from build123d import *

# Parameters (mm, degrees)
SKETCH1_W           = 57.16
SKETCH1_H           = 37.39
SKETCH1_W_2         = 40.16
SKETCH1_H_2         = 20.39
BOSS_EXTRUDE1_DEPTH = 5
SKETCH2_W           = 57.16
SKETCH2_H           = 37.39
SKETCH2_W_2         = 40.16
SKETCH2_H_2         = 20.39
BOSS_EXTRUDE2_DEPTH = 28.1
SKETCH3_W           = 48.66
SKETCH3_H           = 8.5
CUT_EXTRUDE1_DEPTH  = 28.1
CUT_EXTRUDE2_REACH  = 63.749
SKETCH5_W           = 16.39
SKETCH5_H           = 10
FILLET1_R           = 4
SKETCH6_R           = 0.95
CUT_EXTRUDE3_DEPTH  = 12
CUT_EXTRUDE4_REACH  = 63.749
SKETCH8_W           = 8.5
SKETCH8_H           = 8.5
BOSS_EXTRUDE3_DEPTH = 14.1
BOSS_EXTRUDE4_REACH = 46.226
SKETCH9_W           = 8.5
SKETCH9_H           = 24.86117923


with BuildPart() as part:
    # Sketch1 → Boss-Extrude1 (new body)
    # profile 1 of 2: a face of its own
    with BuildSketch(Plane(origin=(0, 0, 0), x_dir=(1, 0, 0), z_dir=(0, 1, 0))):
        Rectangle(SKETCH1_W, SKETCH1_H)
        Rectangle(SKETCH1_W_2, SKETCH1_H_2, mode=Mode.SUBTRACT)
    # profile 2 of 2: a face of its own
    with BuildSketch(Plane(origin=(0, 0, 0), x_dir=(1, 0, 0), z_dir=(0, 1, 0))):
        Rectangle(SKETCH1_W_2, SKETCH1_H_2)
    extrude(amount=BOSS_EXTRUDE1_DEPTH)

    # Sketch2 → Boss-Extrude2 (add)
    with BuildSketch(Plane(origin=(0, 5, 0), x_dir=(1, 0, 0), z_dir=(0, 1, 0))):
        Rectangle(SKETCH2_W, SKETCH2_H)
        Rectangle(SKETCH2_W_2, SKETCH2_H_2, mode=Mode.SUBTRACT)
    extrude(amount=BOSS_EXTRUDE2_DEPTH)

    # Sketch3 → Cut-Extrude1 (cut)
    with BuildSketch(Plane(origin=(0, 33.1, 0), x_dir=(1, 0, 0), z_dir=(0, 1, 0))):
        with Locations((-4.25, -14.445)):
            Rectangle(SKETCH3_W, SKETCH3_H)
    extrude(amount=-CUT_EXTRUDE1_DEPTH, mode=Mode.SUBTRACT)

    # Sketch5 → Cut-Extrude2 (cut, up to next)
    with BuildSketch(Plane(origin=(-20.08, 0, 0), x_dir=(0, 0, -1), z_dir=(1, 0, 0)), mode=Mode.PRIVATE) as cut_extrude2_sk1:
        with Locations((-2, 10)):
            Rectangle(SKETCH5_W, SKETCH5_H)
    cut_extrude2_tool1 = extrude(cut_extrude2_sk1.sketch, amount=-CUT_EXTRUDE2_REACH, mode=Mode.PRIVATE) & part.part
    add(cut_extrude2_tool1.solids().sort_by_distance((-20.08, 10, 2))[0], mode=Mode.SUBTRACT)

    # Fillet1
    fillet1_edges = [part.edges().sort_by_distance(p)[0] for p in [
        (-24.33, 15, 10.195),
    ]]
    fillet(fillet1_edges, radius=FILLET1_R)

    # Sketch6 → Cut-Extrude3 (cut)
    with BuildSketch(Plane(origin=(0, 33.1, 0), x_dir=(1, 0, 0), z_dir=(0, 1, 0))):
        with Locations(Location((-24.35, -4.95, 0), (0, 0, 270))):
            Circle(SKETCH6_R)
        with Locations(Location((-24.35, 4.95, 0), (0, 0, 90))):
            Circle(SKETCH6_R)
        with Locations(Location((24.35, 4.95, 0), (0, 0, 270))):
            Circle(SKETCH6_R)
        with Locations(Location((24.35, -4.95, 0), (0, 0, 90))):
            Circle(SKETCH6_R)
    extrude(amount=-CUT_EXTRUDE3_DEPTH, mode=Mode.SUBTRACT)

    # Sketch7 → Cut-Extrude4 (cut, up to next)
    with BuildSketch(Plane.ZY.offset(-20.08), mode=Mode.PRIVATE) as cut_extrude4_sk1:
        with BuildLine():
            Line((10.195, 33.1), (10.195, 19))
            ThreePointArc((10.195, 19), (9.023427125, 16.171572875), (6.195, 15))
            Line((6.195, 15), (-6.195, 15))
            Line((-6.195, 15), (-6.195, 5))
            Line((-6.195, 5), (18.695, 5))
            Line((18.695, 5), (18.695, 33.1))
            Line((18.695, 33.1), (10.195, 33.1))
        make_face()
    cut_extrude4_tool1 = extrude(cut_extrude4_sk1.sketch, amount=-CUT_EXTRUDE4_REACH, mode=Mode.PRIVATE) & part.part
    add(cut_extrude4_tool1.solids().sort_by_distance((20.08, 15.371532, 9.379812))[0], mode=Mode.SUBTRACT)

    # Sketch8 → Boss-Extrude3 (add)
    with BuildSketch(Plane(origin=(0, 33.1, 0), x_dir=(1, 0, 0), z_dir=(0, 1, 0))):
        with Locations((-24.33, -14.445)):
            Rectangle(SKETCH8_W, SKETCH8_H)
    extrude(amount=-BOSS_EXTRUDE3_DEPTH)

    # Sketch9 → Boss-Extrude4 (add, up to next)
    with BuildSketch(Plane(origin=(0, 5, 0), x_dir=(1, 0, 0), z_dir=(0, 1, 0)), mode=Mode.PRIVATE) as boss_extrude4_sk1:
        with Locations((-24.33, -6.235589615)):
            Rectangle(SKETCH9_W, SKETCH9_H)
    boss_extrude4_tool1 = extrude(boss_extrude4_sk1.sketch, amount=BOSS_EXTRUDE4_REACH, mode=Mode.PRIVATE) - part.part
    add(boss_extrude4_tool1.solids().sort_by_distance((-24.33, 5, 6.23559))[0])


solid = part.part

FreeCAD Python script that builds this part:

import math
import FreeCAD as App
import Part
import Sketcher


def edges_at(feature, points):
    """Names of the edges that pass closest to the given points."""
    edges = feature.Shape.Edges
    near = lambda p: min(range(len(edges)), key=lambda i: edges[i].distToShape(Part.Vertex(*p))[0])
    return sorted({f"Edge{near(p) + 1}" for p in points})


def add_polygon(sketch, points):
    """Adds a closed chain of lines whose ends are joined by coincident constraints."""
    first, n = sketch.GeometryCount, len(points)
    for a, b in zip(points, points[1:] + points[:1]):
        sketch.addGeometry(Part.LineSegment(App.Vector(*a, 0), App.Vector(*b, 0)), False)
    for i in range(n):
        sketch.addConstraint(Sketcher.Constraint("Coincident", first + i, 2, first + (i + 1) % n, 1))

doc = App.newDocument("Part")
body = doc.addObject("PartDesign::Body", "Body")

sketch1 = body.newObject("Sketcher::SketchObject", "Sketch")
sketch1.AttachmentSupport = (doc.getObject("XZ_Plane"), [""])
sketch1.MapMode = "FlatFace"
add_polygon(sketch1, [(-29, -19), (-29, 19), (29, 19), (29, -19)])
sketch1.addConstraint(Sketcher.Constraint("Vertical", 0))
sketch1.addConstraint(Sketcher.Constraint("Horizontal", 1))
sketch1.addConstraint(Sketcher.Constraint("Vertical", 2))
sketch1.addConstraint(Sketcher.Constraint("Horizontal", 3))
sketch1.addConstraint(Sketcher.Constraint("Symmetric", 0, 2, 2, 2, -1, 1))
sketch1.addConstraint(Sketcher.Constraint("DistanceX", 1, 1, 1, 2, 57.16))
sketch1.addConstraint(Sketcher.Constraint("DistanceY", 0, 1, 0, 2, 37.39))
pad1 = body.newObject("PartDesign::Pad", "Pad")
pad1.Profile = sketch1
pad1.Length = 5
pad1.Reversed = True

sketch2 = body.newObject("Sketcher::SketchObject", "Sketch001")
sketch2.AttachmentSupport = (doc.getObject("XZ_Plane"), [""])
sketch2.MapMode = "FlatFace"
sketch2.AttachmentOffset = App.Placement(App.Vector(0, 0, -5), App.Rotation())
add_polygon(sketch2, [(-29, -19), (-29, 19), (29, 19), (29, -19)])
add_polygon(sketch2, [(20, 10), (-20, 10), (-20, -10), (20, -10)])
sketch2.addConstraint(Sketcher.Constraint("Vertical", 0))
sketch2.addConstraint(Sketcher.Constraint("Horizontal", 1))
sketch2.addConstraint(Sketcher.Constraint("Vertical", 2))
sketch2.addConstraint(Sketcher.Constraint("Horizontal", 3))
sketch2.addConstraint(Sketcher.Constraint("Horizontal", 4))
sketch2.addConstraint(Sketcher.Constraint("Vertical", 5))
sketch2.addConstraint(Sketcher.Constraint("Horizontal", 6))
sketch2.addConstraint(Sketcher.Constraint("Vertical", 7))
sketch2.addConstraint(Sketcher.Constraint("Symmetric", 0, 2, 2, 2, -1, 1))
sketch2.addConstraint(Sketcher.Constraint("Symmetric", 4, 2, 6, 2, -1, 1))
sketch2.addConstraint(Sketcher.Constraint("DistanceX", 1, 1, 1, 2, 57.16))
sketch2.addConstraint(Sketcher.Constraint("DistanceX", 4, 2, 4, 1, 40.16))
sketch2.addConstraint(Sketcher.Constraint("DistanceY", 0, 1, 0, 2, 37.39))
sketch2.addConstraint(Sketcher.Constraint("DistanceY", 5, 2, 5, 1, 20.39))
pad2 = body.newObject("PartDesign::Pad", "Pad001")
pad2.Profile = sketch2
pad2.Length = 28.1
pad2.Reversed = True

sketch3 = body.newObject("Sketcher::SketchObject", "Sketch002")
sketch3.AttachmentSupport = (doc.getObject("XZ_Plane"), [""])
sketch3.MapMode = "FlatFace"
sketch3.AttachmentOffset = App.Placement(App.Vector(0, 0, -33.1), App.Rotation())
add_polygon(sketch3, [(-29, 10), (-29, 19), (20, 19), (20, 10)])
sketch3.addConstraint(Sketcher.Constraint("Vertical", 0))
sketch3.addConstraint(Sketcher.Constraint("Horizontal", 1))
sketch3.addConstraint(Sketcher.Constraint("Vertical", 2))
sketch3.addConstraint(Sketcher.Constraint("Horizontal", 3))
sketch3.addConstraint(Sketcher.Constraint("DistanceY", 0, 1, 0, 2, 8.5))
sketch3.addConstraint(Sketcher.Constraint("DistanceX", 1, 1, 1, 2, 48.66))
sketch3.addConstraint(Sketcher.Constraint("DistanceX", 0, 2, -1, 1, 28.58))
sketch3.addConstraint(Sketcher.Constraint("DistanceY", -1, 1, 0, 2, 18.695))
pocket1 = body.newObject("PartDesign::Pocket", "Pocket")
pocket1.Profile = sketch3
pocket1.Length = 28.1
pocket1.Reversed = True

sketch4 = body.newObject("Sketcher::SketchObject", "Sketch003")
sketch4.AttachmentSupport = (doc.getObject("YZ_Plane"), [""])
sketch4.MapMode = "FlatFace"
sketch4.AttachmentOffset = App.Placement(App.Vector(0, 0, -20.08), App.Rotation())
add_polygon(sketch4, [(15, 10), (5, 10), (5, -6), (15, -6)])
sketch4.addConstraint(Sketcher.Constraint("Horizontal", 0))
sketch4.addConstraint(Sketcher.Constraint("Vertical", 1))
sketch4.addConstraint(Sketcher.Constraint("Horizontal", 2))
sketch4.addConstraint(Sketcher.Constraint("Vertical", 3))
sketch4.addConstraint(Sketcher.Constraint("DistanceX", 0, 2, 0, 1, 10.0))
sketch4.addConstraint(Sketcher.Constraint("DistanceX", -1, 1, 0, 2, 5.0))
sketch4.addConstraint(Sketcher.Constraint("DistanceY", 1, 2, 1, 1, 16.39))
sketch4.addConstraint(Sketcher.Constraint("DistanceY", -1, 1, 0, 2, 10.195))
pocket2 = body.newObject("PartDesign::Pocket", "Pocket001")
pocket2.Profile = sketch4
pocket2.Type = "UpToFirst"
doc.recompute()

fillet = body.newObject("PartDesign::Fillet", "Fillet")
fillet.Base = (pocket2, edges_at(pocket2, [(-24.33, 15, 10.195)]))
fillet.Radius = 4

sketch5 = body.newObject("Sketcher::SketchObject", "Sketch004")
sketch5.AttachmentSupport = (doc.getObject("XZ_Plane"), [""])
sketch5.MapMode = "FlatFace"
sketch5.AttachmentOffset = App.Placement(App.Vector(0, 0, -33.1), App.Rotation())
sketch5.addGeometry(Part.Circle(App.Vector(-24.4, 5, 0), App.Vector(0, 0, 1), 0.9), False)
sketch5.addGeometry(Part.Circle(App.Vector(-24.4, -5, 0), App.Vector(0, 0, 1), 0.9), False)
sketch5.addGeometry(Part.Circle(App.Vector(24.4, -5, 0), App.Vector(0, 0, 1), 0.9), False)
sketch5.addGeometry(Part.Circle(App.Vector(24.4, 5, 0), App.Vector(0, 0, 1), 0.9), False)
sketch5.addConstraint(Sketcher.Constraint("Equal", 0, 1))
sketch5.addConstraint(Sketcher.Constraint("Equal", 1, 2))
sketch5.addConstraint(Sketcher.Constraint("Equal", 2, 3))
sketch5.addConstraint(Sketcher.Constraint("Symmetric", 0, 3, 2, 3, -1, 1))
sketch5.addConstraint(Sketcher.Constraint("Symmetric", 1, 3, 3, 3, -1, 1))
sketch5.addConstraint(Sketcher.Constraint("Symmetric", 1, 3, 2, 3, -2))
sketch5.addConstraint(Sketcher.Constraint("Diameter", 0, 1.9))
sketch5.addConstraint(Sketcher.Constraint("DistanceY", 1, 3, 0, 3, 9.9))
sketch5.addConstraint(Sketcher.Constraint("DistanceX", 1, 3, 2, 3, 48.7))
pocket3 = body.newObject("PartDesign::Pocket", "Pocket002")
pocket3.Profile = sketch5
pocket3.Length = 12
pocket3.Reversed = True

sketch6 = body.newObject("Sketcher::SketchObject", "Sketch005")
sketch6.AttachmentSupport = (doc.getObject("YZ_Plane"), [""])
sketch6.MapMode = "FlatFace"
sketch6.AttachmentOffset = App.Placement(App.Vector(0, 0, 20.08), App.Rotation())
sketch6.addGeometry(Part.LineSegment(App.Vector(33.1, 10.2, 0), App.Vector(19, 10.2, 0)), False)
sketch6.addGeometry(Part.ArcOfCircle(Part.Circle(App.Vector(19, 6.2, 0), App.Vector(0, 0, 1), 4), math.radians(90), math.radians(180)), False)
sketch6.addGeometry(Part.LineSegment(App.Vector(15, 6.2, 0), App.Vector(15, -6.2, 0)), False)
sketch6.addGeometry(Part.LineSegment(App.Vector(15, -6.2, 0), App.Vector(5, -6.2, 0)), False)
sketch6.addGeometry(Part.LineSegment(App.Vector(5, -6.2, 0), App.Vector(5, 18.7, 0)), False)
sketch6.addGeometry(Part.LineSegment(App.Vector(5, 18.7, 0), App.Vector(33.1, 18.7, 0)), False)
sketch6.addGeometry(Part.LineSegment(App.Vector(33.1, 18.7, 0), App.Vector(33.1, 10.2, 0)), False)
sketch6.addConstraint(Sketcher.Constraint("Tangent", 0, 2, 1, 1))
sketch6.addConstraint(Sketcher.Constraint("Tangent", 1, 2, 2, 1))
sketch6.addConstraint(Sketcher.Constraint("Coincident", 2, 2, 3, 1))
sketch6.addConstraint(Sketcher.Constraint("Coincident", 3, 2, 4, 1))
sketch6.addConstraint(Sketcher.Constraint("Coincident", 4, 2, 5, 1))
sketch6.addConstraint(Sketcher.Constraint("Coincident", 5, 2, 6, 1))
sketch6.addConstraint(Sketcher.Constraint("Coincident", 6, 2, 0, 1))
sketch6.addConstraint(Sketcher.Constraint("Horizontal", 0))
sketch6.addConstraint(Sketcher.Constraint("Vertical", 2))
sketch6.addConstraint(Sketcher.Constraint("Horizontal", 3))
sketch6.addConstraint(Sketcher.Constraint("Vertical", 4))
sketch6.addConstraint(Sketcher.Constraint("Horizontal", 5))
sketch6.addConstraint(Sketcher.Constraint("Vertical", 6))
sketch6.addConstraint(Sketcher.Constraint("Radius", 1, 4.0))
sketch6.addConstraint(Sketcher.Constraint("DistanceX", 3, 2, 3, 1, 10.0))
sketch6.addConstraint(Sketcher.Constraint("DistanceX", 0, 2, 0, 1, 14.1))
sketch6.addConstraint(Sketcher.Constraint("DistanceY", 6, 2, 6, 1, 8.5))
sketch6.addConstraint(Sketcher.Constraint("DistanceX", -1, 1, 1, 3, 19.0))
sketch6.addConstraint(Sketcher.Constraint("DistanceY", 2, 2, 2, 1, 12.39))
sketch6.addConstraint(Sketcher.Constraint("DistanceY", -1, 1, 1, 3, 6.195))
pocket4 = body.newObject("PartDesign::Pocket", "Pocket003")
pocket4.Profile = sketch6
pocket4.Type = "UpToFirst"
pocket4.Reversed = True

sketch7 = body.newObject("Sketcher::SketchObject", "Sketch006")
sketch7.AttachmentSupport = (doc.getObject("XZ_Plane"), [""])
sketch7.MapMode = "FlatFace"
sketch7.AttachmentOffset = App.Placement(App.Vector(0, 0, -33.1), App.Rotation())
add_polygon(sketch7, [(-29, 10), (-29, 19), (-20, 19), (-20, 10)])
sketch7.addConstraint(Sketcher.Constraint("Vertical", 0))
sketch7.addConstraint(Sketcher.Constraint("Horizontal", 1))
sketch7.addConstraint(Sketcher.Constraint("Vertical", 2))
sketch7.addConstraint(Sketcher.Constraint("Horizontal", 3))
sketch7.addConstraint(Sketcher.Constraint("Equal", 3, 0))
sketch7.addConstraint(Sketcher.Constraint("DistanceX", 1, 1, 1, 2, 8.5))
sketch7.addConstraint(Sketcher.Constraint("DistanceX", 0, 2, -1, 1, 28.58))
sketch7.addConstraint(Sketcher.Constraint("DistanceY", -1, 1, 0, 2, 18.695))
pad3 = body.newObject("PartDesign::Pad", "Pad002")
pad3.Profile = sketch7
pad3.Length = 14.1

sketch8 = body.newObject("Sketcher::SketchObject", "Sketch007")
sketch8.AttachmentSupport = (doc.getObject("XZ_Plane"), [""])
sketch8.MapMode = "FlatFace"
sketch8.AttachmentOffset = App.Placement(App.Vector(0, 0, -5), App.Rotation())
add_polygon(sketch8, [(-29, -6), (-29, 19), (-20, 19), (-20, -6)])
sketch8.addConstraint(Sketcher.Constraint("Vertical", 0))
sketch8.addConstraint(Sketcher.Constraint("Horizontal", 1))
sketch8.addConstraint(Sketcher.Constraint("Vertical", 2))
sketch8.addConstraint(Sketcher.Constraint("Horizontal", 3))
sketch8.addConstraint(Sketcher.Constraint("DistanceX", 1, 1, 1, 2, 8.5))
sketch8.addConstraint(Sketcher.Constraint("DistanceX", 0, 2, -1, 1, 28.58))
sketch8.addConstraint(Sketcher.Constraint("DistanceY", 2, 2, -1, 1, 6.195))
sketch8.addConstraint(Sketcher.Constraint("DistanceY", 0, 1, 0, 2, 24.861179))
pad4 = body.newObject("PartDesign::Pad", "Pad003")
pad4.Profile = sketch8
pad4.Type = "UpToFirst"
pad4.Reversed = True

doc.recompute()
